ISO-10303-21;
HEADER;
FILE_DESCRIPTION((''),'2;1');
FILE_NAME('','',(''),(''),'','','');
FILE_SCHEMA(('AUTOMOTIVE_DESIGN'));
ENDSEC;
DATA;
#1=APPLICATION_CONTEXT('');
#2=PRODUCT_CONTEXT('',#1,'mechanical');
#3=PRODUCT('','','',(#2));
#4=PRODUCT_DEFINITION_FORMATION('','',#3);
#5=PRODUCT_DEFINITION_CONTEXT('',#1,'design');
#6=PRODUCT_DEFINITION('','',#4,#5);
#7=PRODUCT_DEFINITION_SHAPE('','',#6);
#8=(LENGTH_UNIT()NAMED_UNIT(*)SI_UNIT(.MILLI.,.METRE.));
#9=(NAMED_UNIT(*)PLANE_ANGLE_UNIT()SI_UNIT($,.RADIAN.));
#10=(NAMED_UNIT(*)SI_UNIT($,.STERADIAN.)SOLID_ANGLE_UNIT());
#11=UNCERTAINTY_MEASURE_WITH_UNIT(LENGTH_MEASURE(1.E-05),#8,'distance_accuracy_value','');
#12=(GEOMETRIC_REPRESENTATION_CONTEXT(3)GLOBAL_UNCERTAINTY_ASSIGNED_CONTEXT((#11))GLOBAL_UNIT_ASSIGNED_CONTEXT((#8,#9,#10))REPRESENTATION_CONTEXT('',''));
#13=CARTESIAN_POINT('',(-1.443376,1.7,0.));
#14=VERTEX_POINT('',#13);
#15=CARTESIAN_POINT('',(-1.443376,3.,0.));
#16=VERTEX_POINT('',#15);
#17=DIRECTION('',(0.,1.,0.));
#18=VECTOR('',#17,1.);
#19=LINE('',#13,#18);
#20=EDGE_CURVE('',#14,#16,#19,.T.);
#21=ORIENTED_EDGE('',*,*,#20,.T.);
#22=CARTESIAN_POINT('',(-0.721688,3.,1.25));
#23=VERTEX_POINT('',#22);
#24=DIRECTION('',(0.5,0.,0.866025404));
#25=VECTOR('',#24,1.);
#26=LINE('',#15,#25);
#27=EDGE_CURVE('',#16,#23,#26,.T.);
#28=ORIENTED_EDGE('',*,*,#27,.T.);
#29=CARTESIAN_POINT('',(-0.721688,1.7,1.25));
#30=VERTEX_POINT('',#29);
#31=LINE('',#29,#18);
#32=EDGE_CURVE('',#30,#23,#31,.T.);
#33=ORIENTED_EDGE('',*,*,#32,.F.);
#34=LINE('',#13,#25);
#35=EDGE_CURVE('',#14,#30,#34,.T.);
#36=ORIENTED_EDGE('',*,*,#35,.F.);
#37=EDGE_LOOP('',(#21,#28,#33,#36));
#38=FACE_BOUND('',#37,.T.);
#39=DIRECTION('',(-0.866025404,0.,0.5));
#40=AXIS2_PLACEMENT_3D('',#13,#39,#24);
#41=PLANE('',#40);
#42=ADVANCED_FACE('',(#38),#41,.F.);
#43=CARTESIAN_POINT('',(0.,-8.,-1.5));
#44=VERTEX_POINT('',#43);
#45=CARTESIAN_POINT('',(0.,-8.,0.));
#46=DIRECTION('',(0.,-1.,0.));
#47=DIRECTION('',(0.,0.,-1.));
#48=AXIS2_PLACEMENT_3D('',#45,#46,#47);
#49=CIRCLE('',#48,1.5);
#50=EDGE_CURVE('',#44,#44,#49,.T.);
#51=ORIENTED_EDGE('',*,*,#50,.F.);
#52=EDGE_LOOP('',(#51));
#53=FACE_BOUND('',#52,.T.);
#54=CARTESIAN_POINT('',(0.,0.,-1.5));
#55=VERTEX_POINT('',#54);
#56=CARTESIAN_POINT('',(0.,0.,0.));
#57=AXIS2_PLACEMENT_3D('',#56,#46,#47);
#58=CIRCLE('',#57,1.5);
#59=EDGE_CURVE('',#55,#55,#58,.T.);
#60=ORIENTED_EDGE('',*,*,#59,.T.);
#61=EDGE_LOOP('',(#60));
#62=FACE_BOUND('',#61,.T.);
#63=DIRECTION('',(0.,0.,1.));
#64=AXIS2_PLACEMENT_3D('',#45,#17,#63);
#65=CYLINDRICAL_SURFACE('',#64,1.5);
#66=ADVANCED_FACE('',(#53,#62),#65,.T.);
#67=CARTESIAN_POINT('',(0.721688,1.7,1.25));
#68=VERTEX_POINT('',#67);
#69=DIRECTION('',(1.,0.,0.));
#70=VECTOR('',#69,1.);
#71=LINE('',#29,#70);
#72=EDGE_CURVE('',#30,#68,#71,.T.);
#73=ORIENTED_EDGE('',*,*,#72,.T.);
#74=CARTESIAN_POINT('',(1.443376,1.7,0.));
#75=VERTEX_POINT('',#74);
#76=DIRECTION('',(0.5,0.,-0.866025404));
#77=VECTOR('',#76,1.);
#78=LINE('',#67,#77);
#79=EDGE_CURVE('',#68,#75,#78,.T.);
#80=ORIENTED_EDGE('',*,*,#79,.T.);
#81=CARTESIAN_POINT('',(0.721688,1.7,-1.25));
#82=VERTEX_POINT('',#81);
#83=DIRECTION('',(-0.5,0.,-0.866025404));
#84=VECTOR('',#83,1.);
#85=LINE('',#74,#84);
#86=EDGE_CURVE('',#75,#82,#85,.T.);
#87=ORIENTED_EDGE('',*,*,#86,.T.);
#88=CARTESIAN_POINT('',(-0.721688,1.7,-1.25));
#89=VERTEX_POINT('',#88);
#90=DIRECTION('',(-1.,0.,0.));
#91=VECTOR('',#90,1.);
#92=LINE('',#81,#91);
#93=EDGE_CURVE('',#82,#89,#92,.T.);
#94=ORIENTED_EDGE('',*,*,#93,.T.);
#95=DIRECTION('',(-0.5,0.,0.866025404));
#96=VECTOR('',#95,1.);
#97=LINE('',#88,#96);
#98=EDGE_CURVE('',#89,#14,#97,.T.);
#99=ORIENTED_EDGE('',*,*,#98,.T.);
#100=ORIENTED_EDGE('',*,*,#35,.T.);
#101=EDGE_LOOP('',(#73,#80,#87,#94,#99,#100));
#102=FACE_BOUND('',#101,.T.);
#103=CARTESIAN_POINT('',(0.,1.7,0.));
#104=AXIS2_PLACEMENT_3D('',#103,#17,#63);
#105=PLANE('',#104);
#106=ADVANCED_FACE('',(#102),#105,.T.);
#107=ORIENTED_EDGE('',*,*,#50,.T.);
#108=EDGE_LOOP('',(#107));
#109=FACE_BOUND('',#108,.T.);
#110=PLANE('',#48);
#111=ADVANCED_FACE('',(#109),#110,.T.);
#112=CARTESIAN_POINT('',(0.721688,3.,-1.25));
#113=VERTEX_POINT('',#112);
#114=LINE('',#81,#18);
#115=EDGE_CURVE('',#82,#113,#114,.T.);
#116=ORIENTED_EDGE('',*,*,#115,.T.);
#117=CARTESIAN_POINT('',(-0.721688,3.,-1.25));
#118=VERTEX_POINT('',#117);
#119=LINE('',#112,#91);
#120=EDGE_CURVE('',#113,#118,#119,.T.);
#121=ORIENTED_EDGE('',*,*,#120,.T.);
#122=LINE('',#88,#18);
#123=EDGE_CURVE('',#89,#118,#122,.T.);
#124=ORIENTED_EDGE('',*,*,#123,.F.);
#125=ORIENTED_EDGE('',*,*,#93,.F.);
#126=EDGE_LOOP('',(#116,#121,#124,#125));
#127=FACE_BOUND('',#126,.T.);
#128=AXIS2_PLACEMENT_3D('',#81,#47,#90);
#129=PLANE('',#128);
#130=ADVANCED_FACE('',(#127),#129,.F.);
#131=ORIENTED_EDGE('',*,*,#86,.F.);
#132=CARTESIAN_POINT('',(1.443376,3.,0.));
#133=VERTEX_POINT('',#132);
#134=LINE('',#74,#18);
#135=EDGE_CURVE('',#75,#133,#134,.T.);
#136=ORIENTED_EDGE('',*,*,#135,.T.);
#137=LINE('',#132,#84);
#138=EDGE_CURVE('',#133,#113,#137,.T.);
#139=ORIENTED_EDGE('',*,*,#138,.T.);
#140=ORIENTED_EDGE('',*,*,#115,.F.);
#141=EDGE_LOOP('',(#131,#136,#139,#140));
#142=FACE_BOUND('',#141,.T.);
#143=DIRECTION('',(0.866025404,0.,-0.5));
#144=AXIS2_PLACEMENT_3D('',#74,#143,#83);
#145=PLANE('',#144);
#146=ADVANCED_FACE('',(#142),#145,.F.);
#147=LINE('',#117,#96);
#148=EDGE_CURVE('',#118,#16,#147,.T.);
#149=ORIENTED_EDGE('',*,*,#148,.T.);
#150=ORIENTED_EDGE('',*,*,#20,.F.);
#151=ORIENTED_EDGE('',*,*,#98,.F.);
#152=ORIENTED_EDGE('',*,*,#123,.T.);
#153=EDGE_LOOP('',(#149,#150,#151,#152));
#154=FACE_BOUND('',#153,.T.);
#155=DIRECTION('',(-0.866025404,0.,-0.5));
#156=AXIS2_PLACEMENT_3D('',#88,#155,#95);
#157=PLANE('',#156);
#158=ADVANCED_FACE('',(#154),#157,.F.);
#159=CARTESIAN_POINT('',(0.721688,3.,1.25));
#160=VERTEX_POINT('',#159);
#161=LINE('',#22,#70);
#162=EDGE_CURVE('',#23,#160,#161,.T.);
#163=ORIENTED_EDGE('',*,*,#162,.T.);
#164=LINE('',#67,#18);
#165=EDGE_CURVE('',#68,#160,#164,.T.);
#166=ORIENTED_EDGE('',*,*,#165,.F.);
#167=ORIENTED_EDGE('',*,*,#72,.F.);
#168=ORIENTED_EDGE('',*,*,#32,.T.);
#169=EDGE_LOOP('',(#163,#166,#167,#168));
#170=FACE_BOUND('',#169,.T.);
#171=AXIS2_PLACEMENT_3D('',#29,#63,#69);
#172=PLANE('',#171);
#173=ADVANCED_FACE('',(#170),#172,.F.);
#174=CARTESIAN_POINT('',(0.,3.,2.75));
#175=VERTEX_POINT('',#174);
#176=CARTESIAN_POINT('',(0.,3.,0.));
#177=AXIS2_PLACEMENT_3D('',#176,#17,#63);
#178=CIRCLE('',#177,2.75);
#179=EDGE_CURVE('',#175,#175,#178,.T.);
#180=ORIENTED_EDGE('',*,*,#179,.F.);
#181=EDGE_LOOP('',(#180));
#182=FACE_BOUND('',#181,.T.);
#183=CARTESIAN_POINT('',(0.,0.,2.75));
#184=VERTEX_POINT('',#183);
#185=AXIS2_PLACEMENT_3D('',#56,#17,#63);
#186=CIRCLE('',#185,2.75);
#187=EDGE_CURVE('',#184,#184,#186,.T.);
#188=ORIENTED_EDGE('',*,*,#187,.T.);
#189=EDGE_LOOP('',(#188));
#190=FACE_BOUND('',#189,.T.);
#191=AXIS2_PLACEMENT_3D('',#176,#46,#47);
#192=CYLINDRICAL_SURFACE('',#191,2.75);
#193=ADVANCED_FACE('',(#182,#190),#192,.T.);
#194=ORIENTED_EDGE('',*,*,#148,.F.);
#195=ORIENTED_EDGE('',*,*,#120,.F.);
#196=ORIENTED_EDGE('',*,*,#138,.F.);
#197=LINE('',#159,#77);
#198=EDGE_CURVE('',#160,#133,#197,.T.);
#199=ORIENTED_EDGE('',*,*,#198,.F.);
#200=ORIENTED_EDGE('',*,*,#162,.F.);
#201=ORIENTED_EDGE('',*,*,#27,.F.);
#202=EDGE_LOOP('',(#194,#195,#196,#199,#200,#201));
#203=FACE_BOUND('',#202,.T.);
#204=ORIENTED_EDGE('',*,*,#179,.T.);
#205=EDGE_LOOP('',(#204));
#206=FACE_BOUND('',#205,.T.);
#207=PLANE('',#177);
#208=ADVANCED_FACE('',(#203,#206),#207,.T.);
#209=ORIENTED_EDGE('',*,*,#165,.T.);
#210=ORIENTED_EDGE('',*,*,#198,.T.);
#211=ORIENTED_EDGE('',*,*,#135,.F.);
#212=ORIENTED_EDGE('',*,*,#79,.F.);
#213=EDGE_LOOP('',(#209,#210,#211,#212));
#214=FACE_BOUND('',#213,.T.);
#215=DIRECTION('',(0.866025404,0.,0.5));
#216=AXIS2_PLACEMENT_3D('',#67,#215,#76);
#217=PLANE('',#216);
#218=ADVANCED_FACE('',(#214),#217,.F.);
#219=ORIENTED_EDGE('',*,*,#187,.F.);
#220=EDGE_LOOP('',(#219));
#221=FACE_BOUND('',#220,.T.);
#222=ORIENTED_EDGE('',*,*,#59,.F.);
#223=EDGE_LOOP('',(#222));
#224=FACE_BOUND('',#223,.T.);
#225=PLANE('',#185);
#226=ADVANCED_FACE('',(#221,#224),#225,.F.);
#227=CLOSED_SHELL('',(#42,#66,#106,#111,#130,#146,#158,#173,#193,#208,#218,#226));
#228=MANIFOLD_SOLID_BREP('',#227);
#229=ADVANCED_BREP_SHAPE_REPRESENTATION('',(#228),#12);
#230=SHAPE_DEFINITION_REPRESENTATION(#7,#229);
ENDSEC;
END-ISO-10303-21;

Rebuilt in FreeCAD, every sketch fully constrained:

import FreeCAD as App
import Part
import Sketcher
Q = App.Units.Quantity


def add_polygon(sketch, points):
    """Adds a closed chain of lines whose ends are joined by coincident constraints."""
    first, n = sketch.GeometryCount, len(points)
    for a, b in zip(points, points[1:] + points[:1]):
        sketch.addGeometry(Part.LineSegment(App.Vector(*a, 0), App.Vector(*b, 0)), False)
    for i in range(n):
        sketch.addConstraint(Sketcher.Constraint("Coincident", first + i, 2, first + (i + 1) % n, 1))

doc = App.newDocument("Part")
body = doc.addObject("PartDesign::Body", "Body")

# Sketch on XZ plane
sketch1 = body.newObject("Sketcher::SketchObject", "Sketch")
sketch1.AttachmentSupport = (doc.getObject("XZ_Plane"), [""])
sketch1.MapMode = "FlatFace"
sketch1.addGeometry(Part.Circle(App.Vector(0, 0, 0), App.Vector(0, 0, 1), 2.8), False)
sketch1.addConstraint(Sketcher.Constraint("Coincident", 0, 3, -1, 1))
sketch1.addConstraint(Sketcher.Constraint("Diameter", 0, Q("5.5 mm")))
pad1 = body.newObject("PartDesign::Pad", "Pad")
pad1.Profile = sketch1
pad1.Length = 3
pad1.Reversed = True

# Sketch on XZ plane
sketch2 = body.newObject("Sketcher::SketchObject", "Sketch001")
sketch2.AttachmentSupport = (doc.getObject("XZ_Plane"), [""])
sketch2.MapMode = "FlatFace"
sketch2.AttachmentOffset = App.Placement(App.Vector(0, 0, -3), App.Rotation())
add_polygon(sketch2, [(1.4, 0), (0.7, -1.2), (-0.7, -1.2), (-1.4, 0), (-0.7, 1.2), (0.7, 1.2)])  # lines 0-5
sketch2.addConstraint(Sketcher.Constraint("Horizontal", 1))
sketch2.addConstraint(Sketcher.Constraint("Horizontal", 4))
sketch2.addConstraint(Sketcher.Constraint("Symmetric", 0, 2, 3, 2, -1, 1))
sketch2.addConstraint(Sketcher.Constraint("Symmetric", 2, 2, 5, 2, -1, 1))
sketch2.addConstraint(Sketcher.Constraint("PointOnObject", 2, 2, -1))
sketch2.addConstraint(Sketcher.Constraint("Parallel", 2, 5))
sketch2.addConstraint(Sketcher.Constraint("Vertical", 1, 2, 3, 2))
sketch2.addConstraint(Sketcher.Constraint("Angle", 0, Q("-120 deg")))
sketch2.addConstraint(Sketcher.Constraint("DistanceY", 1, 2, 3, 2, Q("2.5 mm")))
sketch2.addConstraint(Sketcher.Constraint("DistanceX", 1, 2, 1, 1, Q("1.443376 mm")))
pocket1 = body.newObject("PartDesign::Pocket", "Pocket")
pocket1.Profile = sketch2
pocket1.Length = 1.3
pocket1.Reversed = True

# Sketch on XZ plane
sketch3 = body.newObject("Sketcher::SketchObject", "Sketch002")
sketch3.AttachmentSupport = (doc.getObject("XZ_Plane"), [""])
sketch3.MapMode = "FlatFace"
sketch3.addGeometry(Part.Circle(App.Vector(0, 0, 0), App.Vector(0, 0, 1), 1.5), False)
sketch3.addConstraint(Sketcher.Constraint("Coincident", 0, 3, -1, 1))
sketch3.addConstraint(Sketcher.Constraint("Diameter", 0, Q("3 mm")))
pad2 = body.newObject("PartDesign::Pad", "Pad001")
pad2.Profile = sketch3
pad2.Length = 8

doc.recompute()
